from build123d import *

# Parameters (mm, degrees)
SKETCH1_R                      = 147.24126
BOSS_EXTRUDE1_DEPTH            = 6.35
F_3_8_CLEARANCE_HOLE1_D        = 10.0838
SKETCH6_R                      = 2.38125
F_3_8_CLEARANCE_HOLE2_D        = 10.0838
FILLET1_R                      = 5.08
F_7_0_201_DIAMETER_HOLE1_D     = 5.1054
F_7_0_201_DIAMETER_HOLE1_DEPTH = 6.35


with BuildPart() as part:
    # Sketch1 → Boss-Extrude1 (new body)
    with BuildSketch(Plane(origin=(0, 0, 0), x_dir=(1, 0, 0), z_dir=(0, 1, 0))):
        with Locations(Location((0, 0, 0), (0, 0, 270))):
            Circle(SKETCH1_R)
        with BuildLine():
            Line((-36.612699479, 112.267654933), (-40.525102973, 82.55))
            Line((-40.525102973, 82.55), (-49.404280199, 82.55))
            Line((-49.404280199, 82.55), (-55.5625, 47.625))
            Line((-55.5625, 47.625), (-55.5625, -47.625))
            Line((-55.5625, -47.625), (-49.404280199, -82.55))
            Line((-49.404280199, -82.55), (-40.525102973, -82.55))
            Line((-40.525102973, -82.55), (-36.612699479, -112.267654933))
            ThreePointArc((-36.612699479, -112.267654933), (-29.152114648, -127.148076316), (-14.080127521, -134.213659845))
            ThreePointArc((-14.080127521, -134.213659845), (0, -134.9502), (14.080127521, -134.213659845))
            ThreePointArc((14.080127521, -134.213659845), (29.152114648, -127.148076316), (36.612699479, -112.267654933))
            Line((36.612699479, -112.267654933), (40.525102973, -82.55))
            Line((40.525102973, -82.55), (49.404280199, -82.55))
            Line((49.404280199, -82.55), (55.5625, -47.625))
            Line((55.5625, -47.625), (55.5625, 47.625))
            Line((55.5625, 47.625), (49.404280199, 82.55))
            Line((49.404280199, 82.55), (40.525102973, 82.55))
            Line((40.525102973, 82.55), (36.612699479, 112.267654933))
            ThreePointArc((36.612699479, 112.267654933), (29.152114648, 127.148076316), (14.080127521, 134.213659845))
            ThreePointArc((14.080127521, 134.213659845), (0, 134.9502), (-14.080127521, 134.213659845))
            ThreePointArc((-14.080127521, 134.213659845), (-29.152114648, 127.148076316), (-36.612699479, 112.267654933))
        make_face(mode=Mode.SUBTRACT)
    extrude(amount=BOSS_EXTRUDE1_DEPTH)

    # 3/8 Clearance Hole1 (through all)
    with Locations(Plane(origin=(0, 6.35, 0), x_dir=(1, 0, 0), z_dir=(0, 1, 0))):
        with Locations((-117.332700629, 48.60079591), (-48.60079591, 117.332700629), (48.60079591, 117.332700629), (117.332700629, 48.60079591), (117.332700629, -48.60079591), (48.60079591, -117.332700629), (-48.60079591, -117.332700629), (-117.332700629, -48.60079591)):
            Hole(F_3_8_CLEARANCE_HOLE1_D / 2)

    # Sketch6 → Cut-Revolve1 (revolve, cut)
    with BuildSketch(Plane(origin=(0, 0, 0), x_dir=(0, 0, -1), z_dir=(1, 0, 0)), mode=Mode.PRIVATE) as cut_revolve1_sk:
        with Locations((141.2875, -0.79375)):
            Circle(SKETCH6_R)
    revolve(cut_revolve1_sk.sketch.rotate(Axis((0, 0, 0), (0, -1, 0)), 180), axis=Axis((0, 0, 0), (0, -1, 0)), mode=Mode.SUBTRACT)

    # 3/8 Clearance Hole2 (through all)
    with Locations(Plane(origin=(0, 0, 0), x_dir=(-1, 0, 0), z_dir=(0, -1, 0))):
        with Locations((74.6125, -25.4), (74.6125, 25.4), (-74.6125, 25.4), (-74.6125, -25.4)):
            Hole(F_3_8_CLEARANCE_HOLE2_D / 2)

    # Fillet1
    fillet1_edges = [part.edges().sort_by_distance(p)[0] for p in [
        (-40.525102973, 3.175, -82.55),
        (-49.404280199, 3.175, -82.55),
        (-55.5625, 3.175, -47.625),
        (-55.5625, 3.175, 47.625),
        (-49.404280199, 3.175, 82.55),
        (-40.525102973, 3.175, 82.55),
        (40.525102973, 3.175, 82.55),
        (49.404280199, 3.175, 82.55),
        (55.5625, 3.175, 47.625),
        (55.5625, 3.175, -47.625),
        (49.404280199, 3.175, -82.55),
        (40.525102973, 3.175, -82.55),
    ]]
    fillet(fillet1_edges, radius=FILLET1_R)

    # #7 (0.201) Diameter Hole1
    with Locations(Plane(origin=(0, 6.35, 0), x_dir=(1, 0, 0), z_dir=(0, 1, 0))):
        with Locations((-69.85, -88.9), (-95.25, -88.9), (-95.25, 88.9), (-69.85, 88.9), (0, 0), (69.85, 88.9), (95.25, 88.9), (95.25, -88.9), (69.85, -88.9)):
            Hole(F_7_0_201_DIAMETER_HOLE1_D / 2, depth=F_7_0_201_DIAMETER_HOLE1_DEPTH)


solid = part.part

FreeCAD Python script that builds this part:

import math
import FreeCAD as App
import Part
import Sketcher

V = App.Vector
Q = App.Units.Quantity


def edges_at(feature, points):
    """Names of the edges that pass closest to the given points."""
    edges = feature.Shape.Edges
    near = lambda p: min(range(len(edges)), key=lambda i: edges[i].distToShape(Part.Vertex(*p))[0])
    return sorted({f"Edge{near(p) + 1}" for p in points})

doc = App.newDocument("Part")
body = doc.addObject("PartDesign::Body", "Body")

# Sketch on XZ plane
sketch1 = body.newObject("Sketcher::SketchObject", "Sketch")
sketch1.AttachmentSupport = (doc.getObject("XZ_Plane"), [""])
sketch1.MapMode = "FlatFace"
sketch1.addGeometry(Part.Circle(V(0, 0, 0), V(0, 0, 1), 147.24126), False)
sketch1.addGeometry(Part.LineSegment(V(-40.525103, -82.55, 0), V(-36.612699, -112.267655, 0)), False)
sketch1.addGeometry(Part.ArcOfCircle(Part.Circle(V(-11.43, -108.95229, 0), V(0, 0, 1), 25.4), math.radians(-172.5), math.radians(-95.988896)), False)
sketch1.addGeometry(Part.ArcOfCircle(Part.Circle(V(0, 0, 0), V(0, 0, 1), 134.9502), math.radians(-95.988896), math.radians(-84.011104)), False)
sketch1.addGeometry(Part.ArcOfCircle(Part.Circle(V(11.43, -108.95229, 0), V(0, 0, 1), 25.4), math.radians(-84.011104), math.radians(-7.5)), False)
sketch1.addGeometry(Part.LineSegment(V(36.612699, -112.267655, 0), V(40.525103, -82.55, 0)), False)
sketch1.addGeometry(Part.LineSegment(V(40.525103, -82.55, 0), V(49.40428, -82.55, 0)), False)
sketch1.addGeometry(Part.LineSegment(V(49.40428, -82.55, 0), V(55.5625, -47.625, 0)), False)
sketch1.addGeometry(Part.LineSegment(V(55.5625, -47.625, 0), V(55.5625, 47.625, 0)), False)
sketch1.addGeometry(Part.LineSegment(V(55.5625, 47.625, 0), V(49.40428, 82.55, 0)), False)
sketch1.addGeometry(Part.LineSegment(V(49.40428, 82.55, 0), V(40.525103, 82.55, 0)), False)
sketch1.addGeometry(Part.LineSegment(V(40.525103, 82.55, 0), V(36.612699, 112.267655, 0)), False)
sketch1.addGeometry(Part.ArcOfCircle(Part.Circle(V(11.43, 108.95229, 0), V(0, 0, 1), 25.4), math.radians(7.5), math.radians(84.011104)), False)
sketch1.addGeometry(Part.ArcOfCircle(Part.Circle(V(0, 0, 0), V(0, 0, 1), 134.9502), math.radians(84.011104), math.radians(95.988896)), False)
sketch1.addGeometry(Part.ArcOfCircle(Part.Circle(V(-11.43, 108.95229, 0), V(0, 0, 1), 25.4), math.radians(95.988896), math.radians(172.5)), False)
sketch1.addGeometry(Part.LineSegment(V(-36.612699, 112.267655, 0), V(-40.525103, 82.55, 0)), False)
sketch1.addGeometry(Part.LineSegment(V(-40.525103, 82.55, 0), V(-49.40428, 82.55, 0)), False)
sketch1.addGeometry(Part.LineSegment(V(-49.40428, 82.55, 0), V(-55.5625, 47.625, 0)), False)
sketch1.addGeometry(Part.LineSegment(V(-55.5625, 47.625, 0), V(-55.5625, -47.625, 0)), False)
sketch1.addGeometry(Part.LineSegment(V(-55.5625, -47.625, 0), V(-49.40428, -82.55, 0)), False)
sketch1.addGeometry(Part.LineSegment(V(-49.40428, -82.55, 0), V(-40.525103, -82.55, 0)), False)
sketch1.addConstraint(Sketcher.Constraint("Tangent", 1, 2, 2, 1))
sketch1.addConstraint(Sketcher.Constraint("Tangent", 2, 2, 3, 1))
sketch1.addConstraint(Sketcher.Constraint("Tangent", 3, 2, 4, 1))
sketch1.addConstraint(Sketcher.Constraint("Tangent", 4, 2, 5, 1))
sketch1.addConstraint(Sketcher.Constraint("Coincident", 5, 2, 6, 1))
sketch1.addConstraint(Sketcher.Constraint("Coincident", 6, 2, 7, 1))
sketch1.addConstraint(Sketcher.Constraint("Coincident", 7, 2, 8, 1))
sketch1.addConstraint(Sketcher.Constraint("Coincident", 8, 2, 9, 1))
sketch1.addConstraint(Sketcher.Constraint("Coincident", 9, 2, 10, 1))
sketch1.addConstraint(Sketcher.Constraint("Coincident", 10, 2, 11, 1))
sketch1.addConstraint(Sketcher.Constraint("Tangent", 11, 2, 12, 1))
sketch1.addConstraint(Sketcher.Constraint("Tangent", 12, 2, 13, 1))
sketch1.addConstraint(Sketcher.Constraint("Tangent", 13, 2, 14, 1))
sketch1.addConstraint(Sketcher.Constraint("Tangent", 14, 2, 15, 1))
sketch1.addConstraint(Sketcher.Constraint("Coincident", 15, 2, 16, 1))
sketch1.addConstraint(Sketcher.Constraint("Coincident", 16, 2, 17, 1))
sketch1.addConstraint(Sketcher.Constraint("Coincident", 17, 2, 18, 1))
sketch1.addConstraint(Sketcher.Constraint("Coincident", 18, 2, 19, 1))
sketch1.addConstraint(Sketcher.Constraint("Coincident", 19, 2, 20, 1))
sketch1.addConstraint(Sketcher.Constraint("Coincident", 20, 2, 1, 1))
sketch1.addConstraint(Sketcher.Constraint("Horizontal", 6))
sketch1.addConstraint(Sketcher.Constraint("Vertical", 8))
sketch1.addConstraint(Sketcher.Constraint("Horizontal", 10))
sketch1.addConstraint(Sketcher.Constraint("Horizontal", 16))
sketch1.addConstraint(Sketcher.Constraint("Vertical", 18))
sketch1.addConstraint(Sketcher.Constraint("Horizontal", 20))
sketch1.addConstraint(Sketcher.Constraint("Coincident", 0, 3, -1, 1))
sketch1.addConstraint(Sketcher.Constraint("Coincident", 3, 3, -1, 1))
sketch1.addConstraint(Sketcher.Constraint("Coincident", 13, 3, -1, 1))
sketch1.addConstraint(Sketcher.Constraint("Equal", 2, 4))
sketch1.addConstraint(Sketcher.Constraint("Equal", 4, 12))
sketch1.addConstraint(Sketcher.Constraint("Equal", 3, 13))
sketch1.addConstraint(Sketcher.Constraint("Equal", 12, 14))
sketch1.addConstraint(Sketcher.Constraint("Symmetric", 1, 2, 11, 2, -1, 1))
sketch1.addConstraint(Sketcher.Constraint("Symmetric", 4, 2, 14, 2, -1, 1))
sketch1.addConstraint(Sketcher.Constraint("Symmetric", 6, 2, 16, 2, -1, 1))
sketch1.addConstraint(Sketcher.Constraint("Symmetric", 7, 2, 17, 2, -1, 1))
sketch1.addConstraint(Sketcher.Constraint("Symmetric", 9, 2, 19, 2, -1, 1))
sketch1.addConstraint(Sketcher.Constraint("Symmetric", 1, 2, 4, 2, -2))
sketch1.addConstraint(Sketcher.Constraint("Symmetric", 9, 2, 16, 2, -2))
sketch1.addConstraint(Sketcher.Constraint("Parallel", 9, 19))
sketch1.addConstraint(Sketcher.Constraint("Horizontal", 8, 2, 17, 2))
sketch1.addConstraint(Sketcher.Constraint("Radius", 2, Q("1 in")))
sketch1.addConstraint(Sketcher.Constraint("Angle", 7, Q("80 deg")))
sketch1.addConstraint(Sketcher.Constraint("Radius", 3, Q("5.313 in")))
sketch1.addConstraint(Sketcher.Constraint("Diameter", 0, Q("11.5938 in")))
sketch1.addConstraint(Sketcher.Constraint("DistanceY", 8, 1, 8, 2, Q("3.75 in")))
sketch1.addConstraint(Sketcher.Constraint("Angle", 1, Q("-82.5 deg")))
sketch1.addConstraint(Sketcher.Constraint("DistanceX", 2, 3, 4, 3, Q("0.9 in")))
sketch1.addConstraint(Sketcher.Constraint("DistanceY", 5, 2, -1, 1, Q("3.25 in")))
sketch1.addConstraint(Sketcher.Constraint("DistanceX", -1, 1, 7, 2, Q("2.1875 in")))
pad1 = body.newObject("PartDesign::Pad", "Pad")
pad1.Profile = sketch1
pad1.Length = Q("0.25 in")
pad1.Reversed = True

# Sketch on XZ plane
sketch2 = body.newObject("Sketcher::SketchObject", "Sketch001")
sketch2.AttachmentSupport = (doc.getObject("XZ_Plane"), [""])
sketch2.MapMode = "FlatFace"
sketch2.AttachmentOffset = App.Placement(V(0, 0, -0.25 * 25.4), App.Rotation())
sketch2.addGeometry(Part.Circle(V(-117.332701, -48.600796, 0), V(0, 0, 1), 5.0419), False)
sketch2.addGeometry(Part.Circle(V(-48.600796, -117.332701, 0), V(0, 0, 1), 5.0419), False)
sketch2.addGeometry(Part.Circle(V(48.600796, -117.332701, 0), V(0, 0, 1), 5.0419), False)
sketch2.addGeometry(Part.Circle(V(117.332701, -48.600796, 0), V(0, 0, 1), 5.0419), False)
sketch2.addGeometry(Part.Circle(V(117.332701, 48.600796, 0), V(0, 0, 1), 5.0419), False)
sketch2.addGeometry(Part.Circle(V(48.600796, 117.332701, 0), V(0, 0, 1), 5.0419), False)
sketch2.addGeometry(Part.Circle(V(-48.600796, 117.332701, 0), V(0, 0, 1), 5.0419), False)
sketch2.addGeometry(Part.Circle(V(-117.332701, 48.600796, 0), V(0, 0, 1), 5.0419), False)
sketch2.addConstraint(Sketcher.Constraint("Equal", 0, 1))
sketch2.addConstraint(Sketcher.Constraint("Equal", 1, 2))
sketch2.addConstraint(Sketcher.Constraint("Equal", 2, 3))
sketch2.addConstraint(Sketcher.Constraint("Equal", 3, 4))
sketch2.addConstraint(Sketcher.Constraint("Equal", 4, 5))
sketch2.addConstraint(Sketcher.Constraint("Equal", 5, 6))
sketch2.addConstraint(Sketcher.Constraint("Equal", 6, 7))
sketch2.addConstraint(Sketcher.Constraint("Symmetric", 0, 3, 4, 3, -1, 1))
sketch2.addConstraint(Sketcher.Constraint("Symmetric", 1, 3, 5, 3, -1, 1))
sketch2.addConstraint(Sketcher.Constraint("Symmetric", 2, 3, 6, 3, -1, 1))
sketch2.addConstraint(Sketcher.Constraint("Symmetric", 3, 3, 7, 3, -1, 1))
sketch2.addConstraint(Sketcher.Constraint("Symmetric", 1, 3, 2, 3, -2))
sketch2.addConstraint(Sketcher.Constraint("Symmetric", 0, 3, 3, 3, -2))
sketch2.addConstraint(Sketcher.Constraint("Diameter", 0, Q("0.397 in")))
sketch2.addConstraint(Sketcher.Constraint("DistanceX", 0, 3, -1, 1, Q("117.332701 mm")))
sketch2.addConstraint(Sketcher.Constraint("DistanceY", 1, 3, -1, 1, Q("117.332701 mm")))
sketch2.addConstraint(Sketcher.Constraint("DistanceX", 1, 3, 2, 3, Q("97.201592 mm")))
sketch2.addConstraint(Sketcher.Constraint("DistanceY", 3, 3, 4, 3, Q("97.201592 mm")))
doc.recompute()
hole = body.newObject("PartDesign::Hole", "Hole")
hole.Profile = sketch2
hole.ThreadType = "None"
hole.Diameter = Q("0.397 in")
hole.DepthType = "ThroughAll"
hole.Reversed = True

# Sketch on YZ plane
sketch3 = body.newObject("Sketcher::SketchObject", "Sketch002")
sketch3.AttachmentSupport = (doc.getObject("YZ_Plane"), [""])
sketch3.MapMode = "FlatFace"
sketch3.addGeometry(Part.Circle(V(-0.79375, -141.2875, 0), V(0, 0, 1), 2.38125), False)
sketch3.addConstraint(Sketcher.Constraint("Diameter", 0, Q("0.1875 in")))
sketch3.addConstraint(Sketcher.Constraint("DistanceX", 0, 3, -1, 1, Q("0.03125 in")))
sketch3.addConstraint(Sketcher.Constraint("DistanceY", 0, 3, -1, 1, Q("5.5625 in")))
groove = body.newObject("PartDesign::Groove", "Groove")
groove.Profile = sketch3
groove.ReferenceAxis = (sketch3, ["H_Axis"])
groove.Angle = 360

# Sketch on XZ plane
sketch4 = body.newObject("Sketcher::SketchObject", "Sketch003")
sketch4.AttachmentSupport = (doc.getObject("XZ_Plane"), [""])
sketch4.MapMode = "FlatFace"
sketch4.addGeometry(Part.Circle(V(-74.6125, 25.4, 0), V(0, 0, 1), 5.0419), False)
sketch4.addGeometry(Part.Circle(V(-74.6125, -25.4, 0), V(0, 0, 1), 5.0419), False)
sketch4.addGeometry(Part.Circle(V(74.6125, -25.4, 0), V(0, 0, 1), 5.0419), False)
sketch4.addGeometry(Part.Circle(V(74.6125, 25.4, 0), V(0, 0, 1), 5.0419), False)
sketch4.addConstraint(Sketcher.Constraint("Equal", 0, 1))
sketch4.addConstraint(Sketcher.Constraint("Equal", 1, 2))
sketch4.addConstraint(Sketcher.Constraint("Equal", 2, 3))
sketch4.addConstraint(Sketcher.Constraint("Symmetric", 0, 3, 2, 3, -1, 1))
sketch4.addConstraint(Sketcher.Constraint("Symmetric", 1, 3, 3, 3, -1, 1))
sketch4.addConstraint(Sketcher.Constraint("Symmetric", 1, 3, 2, 3, -2))
sketch4.addConstraint(Sketcher.Constraint("Diameter", 0, Q("0.397 in")))
sketch4.addConstraint(Sketcher.Constraint("DistanceY", -1, 1, 0, 3, Q("1 in")))
sketch4.addConstraint(Sketcher.Constraint("DistanceX", 0, 3, -1, 1, Q("2.9375 in")))
doc.recompute()
hole2 = body.newObject("PartDesign::Hole", "Hole001")
hole2.Profile = sketch4
hole2.ThreadType = "None"
hole2.Diameter = Q("0.397 in")
hole2.DepthType = "ThroughAll"
doc.recompute()

fillet = body.newObject("PartDesign::Fillet", "Fillet")
fillet.Base = (hole2, edges_at(hole2, [
    (-40.525, 3.175, -82.55),
    (-49.404, 3.175, -82.55),
    (-55.562, 3.175, -47.625),
    (-55.562, 3.175, 47.625),
    (-49.404, 3.175, 82.55),
    (-40.525, 3.175, 82.55),
    (40.525, 3.175, 82.55),
    (49.404, 3.175, 82.55),
    (55.562, 3.175, 47.625),
    (55.562, 3.175, -47.625),
    (49.404, 3.175, -82.55),
    (40.525, 3.175, -82.55),
]))
fillet.Radius = Q("0.2 in")

# Sketch on XZ plane
sketch5 = body.newObject("Sketcher::SketchObject", "Sketch004")
sketch5.AttachmentSupport = (doc.getObject("XZ_Plane"), [""])
sketch5.MapMode = "FlatFace"
sketch5.AttachmentOffset = App.Placement(V(0, 0, -0.25 * 25.4), App.Rotation())
sketch5.addGeometry(Part.Circle(V(-69.85, 88.9, 0), V(0, 0, 1), 2.5527), False)
sketch5.addGeometry(Part.Circle(V(-95.25, 88.9, 0), V(0, 0, 1), 2.5527), False)
sketch5.addGeometry(Part.Circle(V(-95.25, -88.9, 0), V(0, 0, 1), 2.5527), False)
sketch5.addGeometry(Part.Circle(V(-69.85, -88.9, 0), V(0, 0, 1), 2.5527), False)
sketch5.addGeometry(Part.Circle(V(0, 0, 0), V(0, 0, 1), 2.5527), False)
sketch5.addGeometry(Part.Circle(V(69.85, -88.9, 0), V(0, 0, 1), 2.5527), False)
sketch5.addGeometry(Part.Circle(V(95.25, -88.9, 0), V(0, 0, 1), 2.5527), False)
sketch5.addGeometry(Part.Circle(V(95.25, 88.9, 0), V(0, 0, 1), 2.5527), False)
sketch5.addGeometry(Part.Circle(V(69.85, 88.9, 0), V(0, 0, 1), 2.5527), False)
sketch5.addConstraint(Sketcher.Constraint("Coincident", 4, 3, -1, 1))
sketch5.addConstraint(Sketcher.Constraint("Equal", 0, 1))
sketch5.addConstraint(Sketcher.Constraint("Equal", 1, 2))
sketch5.addConstraint(Sketcher.Constraint("Equal", 2, 3))
sketch5.addConstraint(Sketcher.Constraint("Equal", 3, 4))
sketch5.addConstraint(Sketcher.Constraint("Equal", 4, 5))
sketch5.addConstraint(Sketcher.Constraint("Equal", 5, 6))
sketch5.addConstraint(Sketcher.Constraint("Equal", 6, 7))
sketch5.addConstraint(Sketcher.Constraint("Equal", 7, 8))
sketch5.addConstraint(Sketcher.Constraint("Symmetric", 0, 3, 5, 3, -1, 1))
sketch5.addConstraint(Sketcher.Constraint("Symmetric", 1, 3, 6, 3, -1, 1))
sketch5.addConstraint(Sketcher.Constraint("Symmetric", 2, 3, 7, 3, -1, 1))
sketch5.addConstraint(Sketcher.Constraint("Symmetric", 3, 3, 8, 3, -1, 1))
sketch5.addConstraint(Sketcher.Constraint("Symmetric", 3, 3, 5, 3, -2))
sketch5.addConstraint(Sketcher.Constraint("Symmetric", 2, 3, 6, 3, -2))
sketch5.addConstraint(Sketcher.Constraint("Horizontal", 0, 3, 1, 3))
sketch5.addConstraint(Sketcher.Constraint("Diameter", 0, Q("0.201 in")))
sketch5.addConstraint(Sketcher.Constraint("DistanceX", 1, 3, 0, 3, Q("1 in")))
sketch5.addConstraint(Sketcher.Constraint("DistanceY", 2, 3, 1, 3, Q("7 in")))
sketch5.addConstraint(Sketcher.Constraint("DistanceX", 3, 3, 5, 3, Q("5.5 in")))
doc.recompute()
hole3 = body.newObject("PartDesign::Hole", "Hole002")
hole3.Profile = sketch5
hole3.ThreadType = "None"
hole3.Diameter = Q("0.201 in")
hole3.DepthType = "Dimension"
hole3.Depth = Q("0.25 in")
hole3.DrillPoint = "Flat"
hole3.Reversed = True

doc.recompute()
